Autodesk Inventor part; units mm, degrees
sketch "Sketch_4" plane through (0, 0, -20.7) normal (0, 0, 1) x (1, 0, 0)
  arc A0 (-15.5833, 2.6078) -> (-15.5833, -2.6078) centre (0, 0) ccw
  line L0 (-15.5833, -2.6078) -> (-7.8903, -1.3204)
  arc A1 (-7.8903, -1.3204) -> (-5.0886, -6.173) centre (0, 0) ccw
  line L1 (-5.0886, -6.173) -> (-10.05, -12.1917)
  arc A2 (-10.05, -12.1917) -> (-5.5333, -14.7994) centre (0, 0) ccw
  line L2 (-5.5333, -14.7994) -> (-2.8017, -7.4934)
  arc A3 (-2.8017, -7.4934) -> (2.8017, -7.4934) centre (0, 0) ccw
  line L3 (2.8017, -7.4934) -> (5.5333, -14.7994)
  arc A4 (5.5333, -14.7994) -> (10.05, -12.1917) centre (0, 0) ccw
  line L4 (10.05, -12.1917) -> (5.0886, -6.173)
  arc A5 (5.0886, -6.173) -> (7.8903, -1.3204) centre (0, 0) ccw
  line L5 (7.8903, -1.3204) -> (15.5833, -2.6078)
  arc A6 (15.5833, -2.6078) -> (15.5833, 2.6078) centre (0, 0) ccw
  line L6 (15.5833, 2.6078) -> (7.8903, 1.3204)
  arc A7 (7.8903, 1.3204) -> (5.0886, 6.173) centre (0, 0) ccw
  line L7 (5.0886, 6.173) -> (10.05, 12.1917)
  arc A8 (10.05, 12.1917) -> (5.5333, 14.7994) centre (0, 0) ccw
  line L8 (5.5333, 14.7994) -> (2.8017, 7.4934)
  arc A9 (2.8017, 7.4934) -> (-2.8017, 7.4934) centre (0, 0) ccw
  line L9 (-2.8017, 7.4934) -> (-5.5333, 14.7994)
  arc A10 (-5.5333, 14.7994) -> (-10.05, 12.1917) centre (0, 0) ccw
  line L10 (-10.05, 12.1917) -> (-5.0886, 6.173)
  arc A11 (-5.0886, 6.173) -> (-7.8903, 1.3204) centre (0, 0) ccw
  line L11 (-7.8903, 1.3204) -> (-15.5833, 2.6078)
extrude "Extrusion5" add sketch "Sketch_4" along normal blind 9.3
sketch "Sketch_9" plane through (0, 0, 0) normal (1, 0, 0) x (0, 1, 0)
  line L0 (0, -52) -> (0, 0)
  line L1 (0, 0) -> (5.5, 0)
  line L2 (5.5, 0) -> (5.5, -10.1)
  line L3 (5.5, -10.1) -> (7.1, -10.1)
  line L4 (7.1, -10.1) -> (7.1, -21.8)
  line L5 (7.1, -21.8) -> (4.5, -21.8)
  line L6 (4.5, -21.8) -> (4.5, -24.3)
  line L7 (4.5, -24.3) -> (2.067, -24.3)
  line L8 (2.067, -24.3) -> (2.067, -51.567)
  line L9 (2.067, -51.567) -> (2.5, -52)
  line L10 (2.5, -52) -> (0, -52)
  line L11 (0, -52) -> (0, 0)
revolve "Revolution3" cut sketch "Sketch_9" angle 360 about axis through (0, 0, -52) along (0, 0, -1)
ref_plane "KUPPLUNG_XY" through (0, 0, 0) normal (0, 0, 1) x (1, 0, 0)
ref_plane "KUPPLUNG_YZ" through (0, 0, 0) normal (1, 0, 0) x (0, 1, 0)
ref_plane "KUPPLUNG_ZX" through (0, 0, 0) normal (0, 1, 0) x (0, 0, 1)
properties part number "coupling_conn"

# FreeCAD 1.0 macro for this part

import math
import FreeCAD as App
import Part
import Sketcher

V = App.Vector
Q = App.Units.Quantity

doc = App.newDocument("Part")
body = doc.addObject("PartDesign::Body", "Body")

# Sketch on XY plane
sketch1 = body.newObject("Sketcher::SketchObject", "Sketch")
sketch1.AttachmentSupport = (doc.getObject("XY_Plane"), [""])
sketch1.MapMode = "FlatFace"
sketch1.AttachmentOffset = App.Placement(V(0, 0, -20.7), App.Rotation())
sketch1.addGeometry(Part.LineSegment(V(-8, 1, 0), V(-16, 3, 0)), False)
sketch1.addGeometry(Part.ArcOfCircle(Part.Circle(V(0, 0, 0), V(0, 0, 1), 16), math.radians(170.5), math.radians(189.5)), False)
sketch1.addGeometry(Part.LineSegment(V(-16, -3, 0), V(-8, -1, 0)), False)
sketch1.addGeometry(Part.ArcOfCircle(Part.Circle(V(0, 0, 0), V(0, 0, 1), 8), math.radians(-170), math.radians(-129)), False)
sketch1.addGeometry(Part.LineSegment(V(-5, -6, 0), V(-10, -12, 0)), False)
sketch1.addGeometry(Part.ArcOfCircle(Part.Circle(V(0, 0, 0), V(0, 0, 1), 16), math.radians(-129.5), math.radians(-110.5)), False)
sketch1.addGeometry(Part.LineSegment(V(-6, -15, 0), V(-3, -7, 0)), False)
sketch1.addGeometry(Part.ArcOfCircle(Part.Circle(V(0, 0, 0), V(0, 0, 1), 8), math.radians(-111), math.radians(-69)), False)
sketch1.addGeometry(Part.LineSegment(V(3, -7, 0), V(6, -15, 0)), False)
sketch1.addGeometry(Part.ArcOfCircle(Part.Circle(V(0, 0, 0), V(0, 0, 1), 16), math.radians(-69.5), math.radians(-50.5)), False)
sketch1.addGeometry(Part.LineSegment(V(10, -12, 0), V(5, -6, 0)), False)
sketch1.addGeometry(Part.ArcOfCircle(Part.Circle(V(0, 0, 0), V(0, 0, 1), 8), math.radians(-51), math.radians(-10)), False)
sketch1.addGeometry(Part.LineSegment(V(8, -1, 0), V(16, -3, 0)), False)
sketch1.addGeometry(Part.ArcOfCircle(Part.Circle(V(0, 0, 0), V(0, 0, 1), 16), math.radians(-9.5), math.radians(9.5)), False)
sketch1.addGeometry(Part.LineSegment(V(16, 3, 0), V(8, 1, 0)), False)
sketch1.addGeometry(Part.ArcOfCircle(Part.Circle(V(0, 0, 0), V(0, 0, 1), 8), math.radians(10), math.radians(51)), False)
sketch1.addGeometry(Part.LineSegment(V(5, 6, 0), V(10, 12, 0)), False)
sketch1.addGeometry(Part.ArcOfCircle(Part.Circle(V(0, 0, 0), V(0, 0, 1), 16), math.radians(50.5), math.radians(69.5)), False)
sketch1.addGeometry(Part.LineSegment(V(6, 15, 0), V(3, 7, 0)), False)
sketch1.addGeometry(Part.ArcOfCircle(Part.Circle(V(0, 0, 0), V(0, 0, 1), 8), math.radians(69), math.radians(111)), False)
sketch1.addGeometry(Part.LineSegment(V(-3, 7, 0), V(-6, 15, 0)), False)
sketch1.addGeometry(Part.ArcOfCircle(Part.Circle(V(0, 0, 0), V(0, 0, 1), 16), math.radians(110.5), math.radians(129.5)), False)
sketch1.addGeometry(Part.LineSegment(V(-10, 12, 0), V(-5, 6, 0)), False)
sketch1.addGeometry(Part.ArcOfCircle(Part.Circle(V(0, 0, 0), V(0, 0, 1), 8), math.radians(129), math.radians(170)), False)
sketch1.addConstraint(Sketcher.Constraint("Coincident", 0, 2, 1, 1))
sketch1.addConstraint(Sketcher.Constraint("Coincident", 1, 2, 2, 1))
sketch1.addConstraint(Sketcher.Constraint("Coincident", 2, 2, 3, 1))
sketch1.addConstraint(Sketcher.Constraint("Coincident", 3, 2, 4, 1))
sketch1.addConstraint(Sketcher.Constraint("Coincident", 4, 2, 5, 1))
sketch1.addConstraint(Sketcher.Constraint("Coincident", 5, 2, 6, 1))
sketch1.addConstraint(Sketcher.Constraint("Coincident", 6, 2, 7, 1))
sketch1.addConstraint(Sketcher.Constraint("Coincident", 7, 2, 8, 1))
sketch1.addConstraint(Sketcher.Constraint("Coincident", 8, 2, 9, 1))
sketch1.addConstraint(Sketcher.Constraint("Coincident", 9, 2, 10, 1))
sketch1.addConstraint(Sketcher.Constraint("Coincident", 10, 2, 11, 1))
sketch1.addConstraint(Sketcher.Constraint("Coincident", 11, 2, 12, 1))
sketch1.addConstraint(Sketcher.Constraint("Coincident", 12, 2, 13, 1))
sketch1.addConstraint(Sketcher.Constraint("Coincident", 13, 2, 14, 1))
sketch1.addConstraint(Sketcher.Constraint("Coincident", 14, 2, 15, 1))
sketch1.addConstraint(Sketcher.Constraint("Coincident", 15, 2, 16, 1))
sketch1.addConstraint(Sketcher.Constraint("Coincident", 16, 2, 17, 1))
sketch1.addConstraint(Sketcher.Constraint("Coincident", 17, 2, 18, 1))
sketch1.addConstraint(Sketcher.Constraint("Coincident", 18, 2, 19, 1))
sketch1.addConstraint(Sketcher.Constraint("Coincident", 19, 2, 20, 1))
sketch1.addConstraint(Sketcher.Constraint("Coincident", 20, 2, 21, 1))
sketch1.addConstraint(Sketcher.Constraint("Coincident", 21, 2, 22, 1))
sketch1.addConstraint(Sketcher.Constraint("Coincident", 22, 2, 23, 1))
sketch1.addConstraint(Sketcher.Constraint("Coincident", 23, 2, 0, 1))
sketch1.addConstraint(Sketcher.Constraint("Coincident", 1, 3, -1, 1))
sketch1.addConstraint(Sketcher.Constraint("Coincident", 3, 3, -1, 1))
sketch1.addConstraint(Sketcher.Constraint("Coincident", 5, 3, -1, 1))
sketch1.addConstraint(Sketcher.Constraint("Coincident", 7, 3, -1, 1))
sketch1.addConstraint(Sketcher.Constraint("Coincident", 9, 3, -1, 1))
sketch1.addConstraint(Sketcher.Constraint("Coincident", 11, 3, -1, 1))
sketch1.addConstraint(Sketcher.Constraint("Coincident", 13, 3, -1, 1))
sketch1.addConstraint(Sketcher.Constraint("Coincident", 15, 3, -1, 1))
sketch1.addConstraint(Sketcher.Constraint("Coincident", 17, 3, -1, 1))
sketch1.addConstraint(Sketcher.Constraint("Coincident", 19, 3, -1, 1))
sketch1.addConstraint(Sketcher.Constraint("Coincident", 21, 3, -1, 1))
sketch1.addConstraint(Sketcher.Constraint("Coincident", 23, 3, -1, 1))
sketch1.addConstraint(Sketcher.Constraint("Equal", 1, 5))
sketch1.addConstraint(Sketcher.Constraint("Equal", 3, 7))
sketch1.addConstraint(Sketcher.Constraint("Equal", 5, 9))
sketch1.addConstraint(Sketcher.Constraint("Equal", 7, 11))
sketch1.addConstraint(Sketcher.Constraint("Equal", 9, 13))
sketch1.addConstraint(Sketcher.Constraint("Equal", 11, 15))
sketch1.addConstraint(Sketcher.Constraint("Equal", 13, 17))
sketch1.addConstraint(Sketcher.Constraint("Equal", 15, 19))
sketch1.addConstraint(Sketcher.Constraint("Equal", 17, 21))
sketch1.addConstraint(Sketcher.Constraint("Equal", 19, 23))
sketch1.addConstraint(Sketcher.Constraint("Parallel", 0, 12))
sketch1.addConstraint(Sketcher.Constraint("Parallel", 2, 14))
sketch1.addConstraint(Sketcher.Constraint("Parallel", 4, 16))
sketch1.addConstraint(Sketcher.Constraint("Parallel", 6, 18))
sketch1.addConstraint(Sketcher.Constraint("Parallel", 8, 20))
sketch1.addConstraint(Sketcher.Constraint("Parallel", 10, 22))
sketch1.addConstraint(Sketcher.Constraint("Horizontal", 6, 2, 7, 2))
sketch1.addConstraint(Sketcher.Constraint("Horizontal", 5, 2, 8, 2))
sketch1.addConstraint(Sketcher.Constraint("Horizontal", 4, 2, 9, 2))
sketch1.addConstraint(Sketcher.Constraint("Horizontal", 3, 2, 10, 2))
sketch1.addConstraint(Sketcher.Constraint("Horizontal", 2, 2, 11, 2))
sketch1.addConstraint(Sketcher.Constraint("Horizontal", 1, 2, 12, 2))
sketch1.addConstraint(Sketcher.Constraint("Horizontal", 0, 2, 13, 2))
sketch1.addConstraint(Sketcher.Constraint("Horizontal", 18, 2, 19, 2))
sketch1.addConstraint(Sketcher.Constraint("Horizontal", 16, 2, 21, 2))
sketch1.addConstraint(Sketcher.Constraint("Vertical", 0, 2, 1, 2))
sketch1.addConstraint(Sketcher.Constraint("Vertical", 10, 2, 15, 2))
sketch1.addConstraint(Sketcher.Constraint("Vertical", 8, 2, 17, 2))
sketch1.addConstraint(Sketcher.Constraint("Radius", 3, 8.0))
sketch1.addConstraint(Sketcher.Constraint("Radius", 1, 15.8))
sketch1.addConstraint(Sketcher.Constraint("Angle", 0, Q("170.4998 deg")))
sketch1.addConstraint(Sketcher.Constraint("Angle", 4, Q("-129.4998 deg")))
sketch1.addConstraint(Sketcher.Constraint("Angle", 6, Q("69.5 deg")))
sketch1.addConstraint(Sketcher.Constraint("DistanceX", 4, 2, -1, 1, 10.05))
sketch1.addConstraint(Sketcher.Constraint("DistanceX", 1, 2, 5, 2, 10.05))
sketch1.addConstraint(Sketcher.Constraint("DistanceY", 4, 2, 1, 2, 9.584))
pad1 = body.newObject("PartDesign::Pad", "Pad")
pad1.Profile = sketch1
pad1.Length = 9.3

# Sketch on YZ plane
sketch2 = body.newObject("Sketcher::SketchObject", "Sketch001")
sketch2.AttachmentSupport = (doc.getObject("YZ_Plane"), [""])
sketch2.MapMode = "FlatFace"
sketch2.addGeometry(Part.LineSegment(V(0, 0, 0), V(0, -52, 0)), False)
sketch2.addGeometry(Part.LineSegment(V(0, -52, 0), V(2.5, -52, 0)), False)
sketch2.addGeometry(Part.LineSegment(V(2.5, -52, 0), V(2.1, -51.6, 0)), False)
sketch2.addGeometry(Part.LineSegment(V(2.1, -51.6, 0), V(2.1, -24.3, 0)), False)
sketch2.addGeometry(Part.LineSegment(V(2.1, -24.3, 0), V(4.5, -24.3, 0)), False)
sketch2.addGeometry(Part.LineSegment(V(4.5, -24.3, 0), V(4.5, -21.8, 0)), False)
sketch2.addGeometry(Part.LineSegment(V(4.5, -21.8, 0), V(7.1, -21.8, 0)), False)
sketch2.addGeometry(Part.LineSegment(V(7.1, -21.8, 0), V(7.1, -10.1, 0)), False)
sketch2.addGeometry(Part.LineSegment(V(7.1, -10.1, 0), V(5.5, -10.1, 0)), False)
sketch2.addGeometry(Part.LineSegment(V(5.5, -10.1, 0), V(5.5, 0, 0)), False)
sketch2.addGeometry(Part.LineSegment(V(5.5, 0, 0), V(0, 0, 0)), False)
sketch2.addConstraint(Sketcher.Constraint("Coincident", 0, 2, 1, 1))
sketch2.addConstraint(Sketcher.Constraint("Coincident", 1, 2, 2, 1))
sketch2.addConstraint(Sketcher.Constraint("Coincident", 2, 2, 3, 1))
sketch2.addConstraint(Sketcher.Constraint("Coincident", 3, 2, 4, 1))
sketch2.addConstraint(Sketcher.Constraint("Coincident", 4, 2, 5, 1))
sketch2.addConstraint(Sketcher.Constraint("Coincident", 5, 2, 6, 1))
sketch2.addConstraint(Sketcher.Constraint("Coincident", 6, 2, 7, 1))
sketch2.addConstraint(Sketcher.Constraint("Coincident", 7, 2, 8, 1))
sketch2.addConstraint(Sketcher.Constraint("Coincident", 8, 2, 9, 1))
sketch2.addConstraint(Sketcher.Constraint("Coincident", 9, 2, 10, 1))
sketch2.addConstraint(Sketcher.Constraint("Coincident", 10, 2, 0, 1))
sketch2.addConstraint(Sketcher.Constraint("Vertical", 0))
sketch2.addConstraint(Sketcher.Constraint("Horizontal", 1))
sketch2.addConstraint(Sketcher.Constraint("Vertical", 3))
sketch2.addConstraint(Sketcher.Constraint("Horizontal", 4))
sketch2.addConstraint(Sketcher.Constraint("Vertical", 5))
sketch2.addConstraint(Sketcher.Constraint("Horizontal", 6))
sketch2.addConstraint(Sketcher.Constraint("Vertical", 7))
sketch2.addConstraint(Sketcher.Constraint("Horizontal", 8))
sketch2.addConstraint(Sketcher.Constraint("Vertical", 9))
sketch2.addConstraint(Sketcher.Constraint("Horizontal", 10))
sketch2.addConstraint(Sketcher.Constraint("Coincident", 10, 2, -1, 1))
sketch2.addConstraint(Sketcher.Constraint("Equal", 1, 5))
sketch2.addConstraint(Sketcher.Constraint("DistanceY", 0, 2, 0, 1, 52.0))
sketch2.addConstraint(Sketcher.Constraint("Angle", 2, Q("135 deg")))
sketch2.addConstraint(Sketcher.Constraint("DistanceX", 1, 1, 1, 2, 2.5))
sketch2.addConstraint(Sketcher.Constraint("DistanceX", 6, 1, 6, 2, 2.6))
sketch2.addConstraint(Sketcher.Constraint("DistanceX", 8, 2, 8, 1, 1.6))
sketch2.addConstraint(Sketcher.Constraint("DistanceX", 10, 2, 10, 1, 5.5))
sketch2.addConstraint(Sketcher.Constraint("DistanceY", 7, 1, 7, 2, 11.7))
sketch2.addConstraint(Sketcher.Constraint("DistanceY", 9, 1, 9, 2, 10.1))
sketch2.addConstraint(Sketcher.Constraint("DistanceX", 4, 1, 4, 2, 2.433))
groove = body.newObject("PartDesign::Groove", "Groove")
groove.Profile = sketch2
groove.ReferenceAxis = (sketch2, ["V_Axis"])
groove.Angle = 360

doc.recompute()
